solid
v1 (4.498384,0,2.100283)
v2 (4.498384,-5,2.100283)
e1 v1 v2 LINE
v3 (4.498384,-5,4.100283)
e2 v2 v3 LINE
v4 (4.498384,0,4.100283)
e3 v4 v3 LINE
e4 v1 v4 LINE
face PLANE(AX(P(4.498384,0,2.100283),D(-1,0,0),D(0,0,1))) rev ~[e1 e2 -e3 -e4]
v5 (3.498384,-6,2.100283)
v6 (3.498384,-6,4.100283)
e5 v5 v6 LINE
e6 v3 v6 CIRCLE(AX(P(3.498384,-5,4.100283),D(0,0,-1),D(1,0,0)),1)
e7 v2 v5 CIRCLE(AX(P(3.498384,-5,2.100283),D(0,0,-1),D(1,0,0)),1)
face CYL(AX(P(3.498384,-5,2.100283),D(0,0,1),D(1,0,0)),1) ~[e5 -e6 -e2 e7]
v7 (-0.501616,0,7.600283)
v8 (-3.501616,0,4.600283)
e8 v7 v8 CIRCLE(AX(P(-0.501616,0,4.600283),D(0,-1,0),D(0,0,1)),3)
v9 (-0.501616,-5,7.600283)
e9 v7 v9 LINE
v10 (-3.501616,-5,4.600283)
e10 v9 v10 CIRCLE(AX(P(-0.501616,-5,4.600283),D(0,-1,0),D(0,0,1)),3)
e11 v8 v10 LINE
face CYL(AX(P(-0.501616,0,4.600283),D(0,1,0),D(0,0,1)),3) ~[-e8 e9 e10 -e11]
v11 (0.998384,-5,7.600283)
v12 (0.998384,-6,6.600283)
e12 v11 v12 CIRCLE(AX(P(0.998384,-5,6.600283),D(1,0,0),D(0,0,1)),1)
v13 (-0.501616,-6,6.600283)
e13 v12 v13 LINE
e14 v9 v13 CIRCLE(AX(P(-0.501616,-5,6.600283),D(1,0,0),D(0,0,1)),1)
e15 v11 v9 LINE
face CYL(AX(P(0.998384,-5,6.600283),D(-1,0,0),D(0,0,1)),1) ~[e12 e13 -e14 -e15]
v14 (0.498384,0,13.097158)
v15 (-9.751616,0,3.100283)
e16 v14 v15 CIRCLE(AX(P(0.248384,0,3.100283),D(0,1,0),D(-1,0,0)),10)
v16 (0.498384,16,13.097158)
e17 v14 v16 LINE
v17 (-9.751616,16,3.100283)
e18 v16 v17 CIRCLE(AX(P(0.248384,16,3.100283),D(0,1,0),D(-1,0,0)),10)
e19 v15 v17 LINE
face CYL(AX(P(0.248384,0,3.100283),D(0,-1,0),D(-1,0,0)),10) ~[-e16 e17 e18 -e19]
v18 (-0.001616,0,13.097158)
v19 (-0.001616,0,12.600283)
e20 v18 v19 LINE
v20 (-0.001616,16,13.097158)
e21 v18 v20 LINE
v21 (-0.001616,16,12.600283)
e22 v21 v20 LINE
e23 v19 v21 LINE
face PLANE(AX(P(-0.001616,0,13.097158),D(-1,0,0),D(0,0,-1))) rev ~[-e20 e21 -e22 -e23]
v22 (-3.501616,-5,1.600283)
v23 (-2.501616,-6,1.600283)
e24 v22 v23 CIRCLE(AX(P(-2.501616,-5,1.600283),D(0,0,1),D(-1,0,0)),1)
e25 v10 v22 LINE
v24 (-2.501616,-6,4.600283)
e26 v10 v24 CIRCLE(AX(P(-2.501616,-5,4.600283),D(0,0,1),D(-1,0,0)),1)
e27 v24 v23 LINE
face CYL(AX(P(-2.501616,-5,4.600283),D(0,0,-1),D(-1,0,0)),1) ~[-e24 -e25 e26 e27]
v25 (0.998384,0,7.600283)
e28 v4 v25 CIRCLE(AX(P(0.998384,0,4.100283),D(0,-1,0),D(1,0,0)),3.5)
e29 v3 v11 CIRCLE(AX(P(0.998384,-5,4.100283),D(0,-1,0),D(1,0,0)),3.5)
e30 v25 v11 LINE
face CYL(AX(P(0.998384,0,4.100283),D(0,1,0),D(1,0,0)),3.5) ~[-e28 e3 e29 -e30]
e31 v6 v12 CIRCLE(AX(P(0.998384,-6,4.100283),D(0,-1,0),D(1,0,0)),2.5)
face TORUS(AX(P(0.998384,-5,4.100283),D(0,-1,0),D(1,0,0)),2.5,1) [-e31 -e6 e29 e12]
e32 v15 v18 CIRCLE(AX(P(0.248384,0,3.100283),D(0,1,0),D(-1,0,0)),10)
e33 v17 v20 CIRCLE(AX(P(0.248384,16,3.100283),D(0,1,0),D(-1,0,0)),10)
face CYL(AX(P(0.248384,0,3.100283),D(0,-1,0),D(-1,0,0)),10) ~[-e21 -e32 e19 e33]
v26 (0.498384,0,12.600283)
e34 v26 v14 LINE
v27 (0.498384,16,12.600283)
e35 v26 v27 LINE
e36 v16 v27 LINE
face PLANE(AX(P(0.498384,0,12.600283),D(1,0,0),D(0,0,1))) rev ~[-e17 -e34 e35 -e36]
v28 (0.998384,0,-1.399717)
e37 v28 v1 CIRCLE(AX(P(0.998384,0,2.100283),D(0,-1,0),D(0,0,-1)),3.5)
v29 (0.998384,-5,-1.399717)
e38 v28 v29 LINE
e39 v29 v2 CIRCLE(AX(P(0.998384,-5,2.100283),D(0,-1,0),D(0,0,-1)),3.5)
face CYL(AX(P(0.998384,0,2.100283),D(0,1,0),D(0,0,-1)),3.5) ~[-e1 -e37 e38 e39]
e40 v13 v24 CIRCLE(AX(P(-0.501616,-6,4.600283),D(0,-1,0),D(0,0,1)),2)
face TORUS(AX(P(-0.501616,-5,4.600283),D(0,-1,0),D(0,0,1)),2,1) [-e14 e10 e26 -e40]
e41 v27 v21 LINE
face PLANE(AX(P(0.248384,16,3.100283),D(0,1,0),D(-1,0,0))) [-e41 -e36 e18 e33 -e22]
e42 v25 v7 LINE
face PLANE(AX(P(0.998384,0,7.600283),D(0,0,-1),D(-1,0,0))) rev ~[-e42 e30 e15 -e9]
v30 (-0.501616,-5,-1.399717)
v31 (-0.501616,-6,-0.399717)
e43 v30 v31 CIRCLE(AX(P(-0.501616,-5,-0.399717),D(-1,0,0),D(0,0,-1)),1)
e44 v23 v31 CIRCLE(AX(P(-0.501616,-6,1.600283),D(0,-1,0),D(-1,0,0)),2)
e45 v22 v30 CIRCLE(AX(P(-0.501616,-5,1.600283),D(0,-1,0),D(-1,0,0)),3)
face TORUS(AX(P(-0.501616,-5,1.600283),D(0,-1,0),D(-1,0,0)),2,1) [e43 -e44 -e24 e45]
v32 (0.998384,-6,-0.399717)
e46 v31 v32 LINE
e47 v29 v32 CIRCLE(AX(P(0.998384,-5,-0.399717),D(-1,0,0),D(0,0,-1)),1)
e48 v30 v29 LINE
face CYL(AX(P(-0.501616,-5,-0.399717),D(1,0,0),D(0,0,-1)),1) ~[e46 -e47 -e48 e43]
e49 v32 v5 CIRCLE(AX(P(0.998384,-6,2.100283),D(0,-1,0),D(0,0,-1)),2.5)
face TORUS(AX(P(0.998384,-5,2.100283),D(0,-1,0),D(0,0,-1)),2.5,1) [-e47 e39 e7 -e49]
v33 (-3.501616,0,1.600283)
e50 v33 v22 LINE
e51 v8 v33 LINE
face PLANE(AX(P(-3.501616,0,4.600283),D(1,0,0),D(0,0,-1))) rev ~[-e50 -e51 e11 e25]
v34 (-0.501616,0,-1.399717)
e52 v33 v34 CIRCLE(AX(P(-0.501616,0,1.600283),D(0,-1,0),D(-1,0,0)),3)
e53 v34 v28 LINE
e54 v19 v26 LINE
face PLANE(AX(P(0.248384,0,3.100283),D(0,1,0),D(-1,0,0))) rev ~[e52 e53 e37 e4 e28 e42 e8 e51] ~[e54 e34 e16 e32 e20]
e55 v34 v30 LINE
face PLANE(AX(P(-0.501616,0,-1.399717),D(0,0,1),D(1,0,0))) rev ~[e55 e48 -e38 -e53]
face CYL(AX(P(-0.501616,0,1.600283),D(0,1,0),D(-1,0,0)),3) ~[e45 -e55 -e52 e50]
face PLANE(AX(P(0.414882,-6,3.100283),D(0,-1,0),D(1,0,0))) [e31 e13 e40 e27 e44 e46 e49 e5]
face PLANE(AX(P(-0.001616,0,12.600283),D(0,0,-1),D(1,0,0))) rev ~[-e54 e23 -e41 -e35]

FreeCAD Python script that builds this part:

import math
import FreeCAD as App
import Part
import Sketcher
from FreeCAD import Vector


def edges_at(feature, points):
    """Names of the edges that pass closest to the given points."""
    edges = feature.Shape.Edges
    near = lambda p: min(range(len(edges)), key=lambda i: edges[i].distToShape(Part.Vertex(*p))[0])
    return sorted({f"Edge{near(p) + 1}" for p in points})

doc = App.newDocument("Part")
body = doc.addObject("PartDesign::Body", "Body")

sketch1 = doc.addObject("Sketcher::SketchObject", "Sketch")
body.addObject(sketch1)
sketch1.AttachmentSupport = (doc.XZ_Plane, [""])
sketch1.MapMode = "FlatFace"
sketch1.addGeometry(Part.LineSegment(Vector(1, 7.6, 0), Vector(-0.5, 7.6, 0)), False)
sketch1.addGeometry(Part.ArcOfCircle(Part.Circle(Vector(-0.5, 4.6, 0), Vector(0, 0, 1), 3), math.radians(90), math.radians(180)), False)
sketch1.addGeometry(Part.LineSegment(Vector(-3.5, 4.6, 0), Vector(-3.5, 1.6, 0)), False)
sketch1.addGeometry(Part.ArcOfCircle(Part.Circle(Vector(-0.5, 1.6, 0), Vector(0, 0, 1), 3), math.radians(180), math.radians(270)), False)
sketch1.addGeometry(Part.LineSegment(Vector(-0.5, -1.4, 0), Vector(1, -1.4, 0)), False)
sketch1.addGeometry(Part.ArcOfCircle(Part.Circle(Vector(1, 2.1, 0), Vector(0, 0, 1), 3.5), math.radians(-90), math.radians(0)), False)
sketch1.addGeometry(Part.LineSegment(Vector(4.5, 2.1, 0), Vector(4.5, 4.1, 0)), False)
sketch1.addGeometry(Part.ArcOfCircle(Part.Circle(Vector(1, 4.1, 0), Vector(0, 0, 1), 3.5), math.radians(0), math.radians(90)), False)
sketch1.addConstraint(Sketcher.Constraint("Tangent", 0, 2, 1, 1))
sketch1.addConstraint(Sketcher.Constraint("Tangent", 1, 2, 2, 1))
sketch1.addConstraint(Sketcher.Constraint("Tangent", 2, 2, 3, 1))
sketch1.addConstraint(Sketcher.Constraint("Tangent", 3, 2, 4, 1))
sketch1.addConstraint(Sketcher.Constraint("Tangent", 4, 2, 5, 1))
sketch1.addConstraint(Sketcher.Constraint("Tangent", 5, 2, 6, 1))
sketch1.addConstraint(Sketcher.Constraint("Tangent", 6, 2, 7, 1))
sketch1.addConstraint(Sketcher.Constraint("Tangent", 7, 2, 0, 1))
sketch1.addConstraint(Sketcher.Constraint("Horizontal", 0))
sketch1.addConstraint(Sketcher.Constraint("Vertical", 2))
sketch1.addConstraint(Sketcher.Constraint("Horizontal", 4))
sketch1.addConstraint(Sketcher.Constraint("Vertical", 6))
sketch1.addConstraint(Sketcher.Constraint("Equal", 1, 3))
sketch1.addConstraint(Sketcher.Constraint("Equal", 5, 7))
sketch1.addConstraint(Sketcher.Constraint("Radius", 1, 3.0))
sketch1.addConstraint(Sketcher.Constraint("Radius", 5, 3.5))
sketch1.addConstraint(Sketcher.Constraint("DistanceY", 2, 2, 2, 1, 3.0))
sketch1.addConstraint(Sketcher.Constraint("DistanceX", 0, 2, 0, 1, 1.5))
sketch1.addConstraint(Sketcher.Constraint("DistanceX", 1, 3, -1, 1, 0.501616))
sketch1.addConstraint(Sketcher.Constraint("DistanceY", -1, 1, 1, 3, 4.600283))
pad1 = doc.addObject("PartDesign::Pad", "Pad")
body.addObject(pad1)
pad1.Profile = sketch1
pad1.Length = 6
doc.recompute()

fillet = doc.addObject("PartDesign::Fillet", "Fillet")
body.addObject(fillet)
fillet.Base = (pad1, edges_at(pad1, [
    (3.473, -6, 6.575),
    (0.248, -6, 7.6),
    (-2.623, -6, 6.722),
    (-3.502, -6, 3.1),
    (-2.623, -6, -0.521),
    (0.248, -6, -1.4),
    (3.473, -6, -0.375),
    (4.498, -6, 3.1),
]))
fillet.Radius = 1

sketch2 = doc.addObject("Sketcher::SketchObject", "Sketch001")
body.addObject(sketch2)
sketch2.AttachmentSupport = (doc.XZ_Plane, [""])
sketch2.MapMode = "FlatFace"
sketch2.addGeometry(Part.Circle(Vector(0, 3, 0), Vector(0, 0, 1), 10), False)
sketch2.addConstraint(Sketcher.Constraint("Diameter", 0, 20.0))
sketch2.addConstraint(Sketcher.Constraint("DistanceX", -1, 1, 0, 3, 0.248384))
sketch2.addConstraint(Sketcher.Constraint("DistanceY", -1, 1, 0, 3, 3.100283))
pad2 = doc.addObject("PartDesign::Pad", "Pad001")
body.addObject(pad2)
pad2.Profile = sketch2
pad2.Length = 16
pad2.Reversed = True

sketch3 = doc.addObject("Sketcher::SketchObject", "Sketch002")
body.addObject(sketch3)
sketch3.AttachmentSupport = (doc.XZ_Plane, [""])
sketch3.MapMode = "FlatFace"
sketch3.addGeometry(Part.LineSegment(Vector(0, 12.6, 0), Vector(0.5, 12.6, 0)), False)
sketch3.addGeometry(Part.LineSegment(Vector(0.5, 12.6, 0), Vector(0.5, 13.1, 0)), False)
sketch3.addGeometry(Part.ArcOfCircle(Part.Circle(Vector(0.25, 3.1, 0), Vector(0, 0, 1), 10), math.radians(88.57), math.radians(90)), False)
sketch3.addGeometry(Part.ArcOfCircle(Part.Circle(Vector(0.25, 3.1, 0), Vector(0, 0, 1), 10), math.radians(90), math.radians(91.43)), False)
sketch3.addGeometry(Part.LineSegment(Vector(0, 13.1, 0), Vector(0, 12.6, 0)), False)
sketch3.addConstraint(Sketcher.Constraint("Coincident", 0, 2, 1, 1))
sketch3.addConstraint(Sketcher.Constraint("Coincident", 1, 2, 2, 1))
sketch3.addConstraint(Sketcher.Constraint("Tangent", 2, 2, 3, 1))
sketch3.addConstraint(Sketcher.Constraint("Coincident", 3, 2, 4, 1))
sketch3.addConstraint(Sketcher.Constraint("Coincident", 4, 2, 0, 1))
sketch3.addConstraint(Sketcher.Constraint("Horizontal", 0))
sketch3.addConstraint(Sketcher.Constraint("Vertical", 1))
sketch3.addConstraint(Sketcher.Constraint("Vertical", 4))
sketch3.addConstraint(Sketcher.Constraint("Equal", 2, 3))
sketch3.addConstraint(Sketcher.Constraint("Horizontal", 1, 2, 3, 2))
sketch3.addConstraint(Sketcher.Constraint("Vertical", 3, 3, 2, 2))
sketch3.addConstraint(Sketcher.Constraint("Radius", 2, 10.0))
sketch3.addConstraint(Sketcher.Constraint("DistanceX", 0, 1, 0, 2, 0.5))
sketch3.addConstraint(Sketcher.Constraint("DistanceY", 3, 3, 0, 2, 9.5))
sketch3.addConstraint(Sketcher.Constraint("DistanceX", -1, 1, 2, 3, 0.248384))
sketch3.addConstraint(Sketcher.Constraint("DistanceY", -1, 1, 2, 3, 3.100283))
pocket1 = doc.addObject("PartDesign::Pocket", "Pocket")
body.addObject(pocket1)
pocket1.Profile = sketch3
pocket1.Length = 25

doc.recompute()
